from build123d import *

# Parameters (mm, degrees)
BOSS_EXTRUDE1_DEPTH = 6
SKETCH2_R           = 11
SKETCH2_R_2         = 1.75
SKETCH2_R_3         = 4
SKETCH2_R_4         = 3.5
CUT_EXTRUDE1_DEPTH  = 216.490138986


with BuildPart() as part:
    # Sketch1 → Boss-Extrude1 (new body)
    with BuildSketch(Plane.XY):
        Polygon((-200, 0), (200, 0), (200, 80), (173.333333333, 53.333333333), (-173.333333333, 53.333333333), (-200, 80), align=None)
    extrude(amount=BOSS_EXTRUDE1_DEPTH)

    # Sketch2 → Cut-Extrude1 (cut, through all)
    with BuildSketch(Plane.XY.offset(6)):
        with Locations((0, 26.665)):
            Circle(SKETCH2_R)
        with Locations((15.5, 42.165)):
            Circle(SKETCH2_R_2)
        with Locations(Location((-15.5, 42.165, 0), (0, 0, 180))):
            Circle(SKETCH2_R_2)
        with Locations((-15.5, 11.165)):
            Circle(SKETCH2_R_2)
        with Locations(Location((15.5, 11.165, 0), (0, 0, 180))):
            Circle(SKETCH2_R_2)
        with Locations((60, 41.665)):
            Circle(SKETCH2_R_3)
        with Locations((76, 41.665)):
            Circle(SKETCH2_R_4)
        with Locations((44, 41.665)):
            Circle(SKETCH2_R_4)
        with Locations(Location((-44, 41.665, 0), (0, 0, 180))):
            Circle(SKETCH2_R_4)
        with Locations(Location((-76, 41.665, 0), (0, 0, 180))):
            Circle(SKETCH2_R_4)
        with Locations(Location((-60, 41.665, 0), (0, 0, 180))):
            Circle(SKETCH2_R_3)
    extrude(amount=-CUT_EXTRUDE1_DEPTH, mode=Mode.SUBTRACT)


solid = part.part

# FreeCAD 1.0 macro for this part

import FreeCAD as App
import Part
import Sketcher

doc = App.newDocument("Part")
params = doc.addObject("Spreadsheet::Sheet", "Params")
for row, (alias, value) in enumerate([
    ("sketch1_width", "400 mm"),
    ("sketch1_height", "80 mm"),
    ("pad1_length", "6 mm"),
    ("sketch2_diameter", "22 mm"),
    ("sketch2_diameter2", "8 mm"),
    ("sketch2_diameter3", "7 mm"),
    ("sketch2_diameter4", "3.5 mm"),
], start=1):
    params.set(f"A{row}", alias)
    params.set(f"B{row}", "=" + value)
    params.setAlias(f"B{row}", alias)

body = doc.addObject("PartDesign::Body", "Body")

sketch1 = doc.addObject("Sketcher::SketchObject", "Sketch")
body.addObject(sketch1)
sketch1.AttachmentSupport = (doc.XY_Plane, [""])
sketch1.MapMode = "FlatFace"
sketch1.addGeometry(Part.LineSegment(App.Vector(-200, 0, 0), App.Vector(200, 0, 0)), False)
sketch1.addGeometry(Part.LineSegment(App.Vector(200, 0, 0), App.Vector(200, 80, 0)), False)
sketch1.addGeometry(Part.LineSegment(App.Vector(200, 80, 0), App.Vector(173, 53, 0)), False)
sketch1.addGeometry(Part.LineSegment(App.Vector(173, 53, 0), App.Vector(-173, 53, 0)), False)
sketch1.addGeometry(Part.LineSegment(App.Vector(-173, 53, 0), App.Vector(-200, 80, 0)), False)
sketch1.addGeometry(Part.LineSegment(App.Vector(-200, 80, 0), App.Vector(-200, 0, 0)), False)
sketch1.addConstraint(Sketcher.Constraint("Coincident", 0, 2, 1, 1))
sketch1.addConstraint(Sketcher.Constraint("Coincident", 1, 2, 2, 1))
sketch1.addConstraint(Sketcher.Constraint("Coincident", 2, 2, 3, 1))
sketch1.addConstraint(Sketcher.Constraint("Coincident", 3, 2, 4, 1))
sketch1.addConstraint(Sketcher.Constraint("Coincident", 4, 2, 5, 1))
sketch1.addConstraint(Sketcher.Constraint("Coincident", 5, 2, 0, 1))
sketch1.addConstraint(Sketcher.Constraint("Horizontal", 0))
sketch1.addConstraint(Sketcher.Constraint("Vertical", 1))
sketch1.addConstraint(Sketcher.Constraint("Horizontal", 3))
sketch1.addConstraint(Sketcher.Constraint("Vertical", 5))
sketch1.addConstraint(Sketcher.Constraint("Symmetric", 0, 2, 5, 2, -1, 1))
sketch1.addConstraint(Sketcher.Constraint("Perpendicular", 2, 4))
sketch1.addConstraint(Sketcher.Constraint("Horizontal", 1, 2, 4, 2))
sketch1.addConstraint(Sketcher.Constraint("Equal", 2, 4))
sketch1.addConstraint(Sketcher.Constraint("DistanceX", 0, 1, 0, 2, 400.0))
sketch1.addConstraint(Sketcher.Constraint("DistanceY", 1, 1, 1, 2, 80.0))
sketch1.addConstraint(Sketcher.Constraint("Distance", 2, 37.712362))
sketch1.setExpression("Constraints[14]", "Params.sketch1_width")
sketch1.setExpression("Constraints[15]", "Params.sketch1_height")
pad1 = doc.addObject("PartDesign::Pad", "Pad")
body.addObject(pad1)
pad1.Profile = sketch1
pad1.setExpression("Length", "Params.pad1_length")

sketch2 = doc.addObject("Sketcher::SketchObject", "Sketch001")
body.addObject(sketch2)
sketch2.AttachmentSupport = (doc.XY_Plane, [""])
sketch2.MapMode = "FlatFace"
sketch2.AttachmentOffset = App.Placement(App.Vector(0, 0, 6), App.Rotation())
sketch2.addGeometry(Part.Circle(App.Vector(0, 26.7, 0), App.Vector(0, 0, 1), 11), False)
sketch2.addGeometry(Part.Circle(App.Vector(15.5, 42.2, 0), App.Vector(0, 0, 1), 1.8), False)
sketch2.addGeometry(Part.Circle(App.Vector(-15.5, 42.2, 0), App.Vector(0, 0, 1), 1.8), False)
sketch2.addGeometry(Part.Circle(App.Vector(-15.5, 11.2, 0), App.Vector(0, 0, 1), 1.8), False)
sketch2.addGeometry(Part.Circle(App.Vector(15.5, 11.2, 0), App.Vector(0, 0, 1), 1.8), False)
sketch2.addGeometry(Part.Circle(App.Vector(60, 41.7, 0), App.Vector(0, 0, 1), 4), False)
sketch2.addGeometry(Part.Circle(App.Vector(76, 41.7, 0), App.Vector(0, 0, 1), 3.5), False)
sketch2.addGeometry(Part.Circle(App.Vector(44, 41.7, 0), App.Vector(0, 0, 1), 3.5), False)
sketch2.addGeometry(Part.Circle(App.Vector(-44, 41.7, 0), App.Vector(0, 0, 1), 3.5), False)
sketch2.addGeometry(Part.Circle(App.Vector(-76, 41.7, 0), App.Vector(0, 0, 1), 3.5), False)
sketch2.addGeometry(Part.Circle(App.Vector(-60, 41.7, 0), App.Vector(0, 0, 1), 4), False)
sketch2.addConstraint(Sketcher.Constraint("Equal", 1, 2))
sketch2.addConstraint(Sketcher.Constraint("Equal", 2, 3))
sketch2.addConstraint(Sketcher.Constraint("Equal", 3, 4))
sketch2.addConstraint(Sketcher.Constraint("Equal", 6, 7))
sketch2.addConstraint(Sketcher.Constraint("Equal", 7, 8))
sketch2.addConstraint(Sketcher.Constraint("Equal", 8, 9))
sketch2.addConstraint(Sketcher.Constraint("Equal", 5, 10))
sketch2.addConstraint(Sketcher.Constraint("Symmetric", 1, 3, 2, 3, -2))
sketch2.addConstraint(Sketcher.Constraint("Symmetric", 3, 3, 4, 3, -2))
sketch2.addConstraint(Sketcher.Constraint("Symmetric", 7, 3, 8, 3, -2))
sketch2.addConstraint(Sketcher.Constraint("Symmetric", 6, 3, 9, 3, -2))
sketch2.addConstraint(Sketcher.Constraint("Symmetric", 5, 3, 10, 3, -2))
sketch2.addConstraint(Sketcher.Constraint("PointOnObject", 0, 3, -2))
sketch2.addConstraint(Sketcher.Constraint("Horizontal", 5, 3, 6, 3))
sketch2.addConstraint(Sketcher.Constraint("Horizontal", 6, 3, 7, 3))
sketch2.addConstraint(Sketcher.Constraint("Vertical", 2, 3, 3, 3))
sketch2.addConstraint(Sketcher.Constraint("Diameter", 0, 22.0))
sketch2.addConstraint(Sketcher.Constraint("Diameter", 5, 8.0))
sketch2.addConstraint(Sketcher.Constraint("Diameter", 6, 7.0))
sketch2.addConstraint(Sketcher.Constraint("Diameter", 1, 3.5))
sketch2.addConstraint(Sketcher.Constraint("DistanceX", -1, 1, 5, 3, 60.0))
sketch2.addConstraint(Sketcher.Constraint("DistanceX", -1, 1, 6, 3, 76.0))
sketch2.addConstraint(Sketcher.Constraint("DistanceX", -1, 1, 7, 3, 44.0))
sketch2.addConstraint(Sketcher.Constraint("DistanceX", 2, 3, 1, 3, 31.0))
sketch2.addConstraint(Sketcher.Constraint("DistanceY", 3, 3, 2, 3, 31.0))
sketch2.addConstraint(Sketcher.Constraint("DistanceY", 0, 3, 5, 3, 15.0))
sketch2.addConstraint(Sketcher.Constraint("DistanceY", 0, 3, 1, 3, 15.5))
sketch2.addConstraint(Sketcher.Constraint("DistanceY", -1, 1, 0, 3, 26.665))
sketch2.setExpression("Constraints[16]", "Params.sketch2_diameter")
sketch2.setExpression("Constraints[17]", "Params.sketch2_diameter2")
sketch2.setExpression("Constraints[18]", "Params.sketch2_diameter3")
sketch2.setExpression("Constraints[19]", "Params.sketch2_diameter4")
pocket1 = doc.addObject("PartDesign::Pocket", "Pocket")
body.addObject(pocket1)
pocket1.Profile = sketch2
pocket1.Type = "ThroughAll"

doc.recompute()
